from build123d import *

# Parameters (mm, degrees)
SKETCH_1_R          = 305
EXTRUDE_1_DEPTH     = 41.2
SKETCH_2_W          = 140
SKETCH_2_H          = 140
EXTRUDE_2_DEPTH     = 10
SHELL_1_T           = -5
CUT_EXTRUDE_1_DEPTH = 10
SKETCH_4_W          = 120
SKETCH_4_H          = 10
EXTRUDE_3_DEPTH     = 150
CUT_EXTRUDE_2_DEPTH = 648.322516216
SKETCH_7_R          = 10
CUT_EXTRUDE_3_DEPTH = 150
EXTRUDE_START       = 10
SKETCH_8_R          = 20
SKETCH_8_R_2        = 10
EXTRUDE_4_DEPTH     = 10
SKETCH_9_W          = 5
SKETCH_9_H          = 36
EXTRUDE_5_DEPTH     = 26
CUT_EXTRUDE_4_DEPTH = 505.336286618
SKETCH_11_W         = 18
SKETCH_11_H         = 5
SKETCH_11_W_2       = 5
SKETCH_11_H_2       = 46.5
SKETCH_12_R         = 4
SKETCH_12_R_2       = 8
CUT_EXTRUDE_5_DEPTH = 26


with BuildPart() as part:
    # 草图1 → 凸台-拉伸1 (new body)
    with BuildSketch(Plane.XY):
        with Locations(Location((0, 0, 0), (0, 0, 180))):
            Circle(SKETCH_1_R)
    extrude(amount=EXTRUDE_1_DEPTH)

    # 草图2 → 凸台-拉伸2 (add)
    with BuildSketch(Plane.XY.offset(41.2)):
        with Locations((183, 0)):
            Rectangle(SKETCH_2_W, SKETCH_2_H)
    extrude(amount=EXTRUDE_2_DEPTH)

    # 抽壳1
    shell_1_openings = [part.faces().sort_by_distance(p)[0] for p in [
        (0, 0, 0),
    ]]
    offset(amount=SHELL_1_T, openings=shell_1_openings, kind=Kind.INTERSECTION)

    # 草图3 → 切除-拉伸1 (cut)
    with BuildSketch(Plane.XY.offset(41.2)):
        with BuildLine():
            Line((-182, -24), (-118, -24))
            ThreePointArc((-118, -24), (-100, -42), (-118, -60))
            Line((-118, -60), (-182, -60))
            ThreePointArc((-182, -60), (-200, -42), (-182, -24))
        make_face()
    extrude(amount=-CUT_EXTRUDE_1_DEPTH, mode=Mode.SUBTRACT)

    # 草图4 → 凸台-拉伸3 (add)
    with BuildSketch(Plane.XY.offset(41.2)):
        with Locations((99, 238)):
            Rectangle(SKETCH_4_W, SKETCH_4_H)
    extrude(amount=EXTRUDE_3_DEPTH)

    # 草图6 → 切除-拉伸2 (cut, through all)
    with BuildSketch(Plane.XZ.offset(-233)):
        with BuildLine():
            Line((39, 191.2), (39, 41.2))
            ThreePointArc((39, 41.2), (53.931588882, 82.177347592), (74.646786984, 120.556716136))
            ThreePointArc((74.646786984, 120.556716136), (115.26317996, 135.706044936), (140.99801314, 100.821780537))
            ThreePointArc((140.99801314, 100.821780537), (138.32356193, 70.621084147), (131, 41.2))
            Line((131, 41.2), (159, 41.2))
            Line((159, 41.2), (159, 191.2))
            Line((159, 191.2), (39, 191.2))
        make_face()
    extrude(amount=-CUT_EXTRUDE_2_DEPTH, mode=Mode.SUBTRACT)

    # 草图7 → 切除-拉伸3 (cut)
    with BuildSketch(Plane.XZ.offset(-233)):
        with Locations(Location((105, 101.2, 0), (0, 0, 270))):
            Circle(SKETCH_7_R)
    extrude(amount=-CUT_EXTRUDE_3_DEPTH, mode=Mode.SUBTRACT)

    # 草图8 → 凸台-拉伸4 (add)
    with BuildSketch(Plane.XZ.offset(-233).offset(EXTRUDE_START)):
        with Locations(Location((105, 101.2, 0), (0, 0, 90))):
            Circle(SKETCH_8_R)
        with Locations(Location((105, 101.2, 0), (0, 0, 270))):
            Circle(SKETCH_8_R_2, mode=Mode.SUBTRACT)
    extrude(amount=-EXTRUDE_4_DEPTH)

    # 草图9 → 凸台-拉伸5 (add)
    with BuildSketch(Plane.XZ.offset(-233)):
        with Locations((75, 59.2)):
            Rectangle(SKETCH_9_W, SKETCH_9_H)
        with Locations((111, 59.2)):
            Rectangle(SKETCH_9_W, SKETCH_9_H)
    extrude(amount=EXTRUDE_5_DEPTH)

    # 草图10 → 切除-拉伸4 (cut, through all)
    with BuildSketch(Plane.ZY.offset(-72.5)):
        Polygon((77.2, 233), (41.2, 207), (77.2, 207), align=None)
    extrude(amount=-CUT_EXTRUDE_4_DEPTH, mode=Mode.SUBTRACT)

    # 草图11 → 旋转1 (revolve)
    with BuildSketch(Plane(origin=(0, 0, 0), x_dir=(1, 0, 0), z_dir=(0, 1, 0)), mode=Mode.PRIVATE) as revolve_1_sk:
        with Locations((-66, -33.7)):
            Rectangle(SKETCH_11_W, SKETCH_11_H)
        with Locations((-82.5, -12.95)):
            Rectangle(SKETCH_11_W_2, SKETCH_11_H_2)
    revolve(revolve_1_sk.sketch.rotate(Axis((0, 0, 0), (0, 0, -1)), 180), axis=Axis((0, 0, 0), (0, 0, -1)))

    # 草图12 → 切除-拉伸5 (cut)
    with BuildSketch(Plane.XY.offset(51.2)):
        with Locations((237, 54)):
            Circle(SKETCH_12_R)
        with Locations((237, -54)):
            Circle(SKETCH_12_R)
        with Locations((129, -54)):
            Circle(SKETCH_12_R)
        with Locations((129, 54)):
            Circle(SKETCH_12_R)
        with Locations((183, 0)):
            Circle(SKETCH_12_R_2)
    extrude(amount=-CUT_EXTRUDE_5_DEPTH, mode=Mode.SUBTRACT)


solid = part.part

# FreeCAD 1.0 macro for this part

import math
import FreeCAD as App
import Part
import Sketcher
from FreeCAD import Vector


def faces_at(feature, points):
    """Names of the faces that lie closest to the given points."""
    faces = feature.Shape.Faces
    near = lambda p: min(range(len(faces)), key=lambda i: faces[i].distToShape(Part.Vertex(*p))[0])
    return sorted({f"Face{near(p) + 1}" for p in points})


def add_polygon(sketch, points):
    """Adds a closed chain of lines whose ends are joined by coincident constraints."""
    first, n = sketch.GeometryCount, len(points)
    for a, b in zip(points, points[1:] + points[:1]):
        sketch.addGeometry(Part.LineSegment(App.Vector(*a, 0), App.Vector(*b, 0)), False)
    for i in range(n):
        sketch.addConstraint(Sketcher.Constraint("Coincident", first + i, 2, first + (i + 1) % n, 1))

doc = App.newDocument("Part")
body = doc.addObject("PartDesign::Body", "Body")

sketch1 = body.newObject("Sketcher::SketchObject", "Sketch")
sketch1.AttachmentSupport = (doc.getObject("XY_Plane"), [""])
sketch1.MapMode = "FlatFace"
sketch1.addGeometry(Part.Circle(Vector(0, 0, 0), Vector(0, 0, 1), 305), False)
sketch1.addConstraint(Sketcher.Constraint("Coincident", 0, 3, -1, 1))
sketch1.addConstraint(Sketcher.Constraint("Diameter", 0, 610.0))
pad1 = body.newObject("PartDesign::Pad", "Pad")
pad1.Profile = sketch1
pad1.Length = 41.2

sketch2 = body.newObject("Sketcher::SketchObject", "Sketch001")
sketch2.AttachmentSupport = (doc.getObject("XY_Plane"), [""])
sketch2.MapMode = "FlatFace"
sketch2.AttachmentOffset = App.Placement(Vector(0, 0, 41.2), App.Rotation())
add_polygon(sketch2, [(113, 70), (113, -70), (253, -70), (253, 70)])
sketch2.addConstraint(Sketcher.Constraint("Vertical", 0))
sketch2.addConstraint(Sketcher.Constraint("Horizontal", 1))
sketch2.addConstraint(Sketcher.Constraint("Vertical", 2))
sketch2.addConstraint(Sketcher.Constraint("Horizontal", 3))
sketch2.addConstraint(Sketcher.Constraint("Equal", 3, 0))
sketch2.addConstraint(Sketcher.Constraint("DistanceX", 1, 1, 1, 2, 140.0))
sketch2.addConstraint(Sketcher.Constraint("DistanceX", -1, 1, 0, 2, 113.0))
sketch2.addConstraint(Sketcher.Constraint("DistanceY", 0, 2, -1, 1, 70.0))
pad2 = body.newObject("PartDesign::Pad", "Pad001")
pad2.Profile = sketch2
pad2.Length = 10
doc.recompute()

thickness = body.newObject("PartDesign::Thickness", "Thickness")
thickness.Base = (pad2, faces_at(pad2, [(0, 0, 0)]))
thickness.Value = 5
thickness.Reversed = True
thickness.Join = "Intersection"

sketch3 = body.newObject("Sketcher::SketchObject", "Sketch002")
sketch3.AttachmentSupport = (doc.getObject("XY_Plane"), [""])
sketch3.MapMode = "FlatFace"
sketch3.AttachmentOffset = App.Placement(Vector(0, 0, 41.2), App.Rotation())
sketch3.addGeometry(Part.LineSegment(Vector(-118, -24, 0), Vector(-182, -24, 0)), False)
sketch3.addGeometry(Part.ArcOfCircle(Part.Circle(Vector(-182, -42, 0), Vector(0, 0, 1), 18), math.radians(90), math.radians(270)), False)
sketch3.addGeometry(Part.LineSegment(Vector(-182, -60, 0), Vector(-118, -60, 0)), False)
sketch3.addGeometry(Part.ArcOfCircle(Part.Circle(Vector(-118, -42, 0), Vector(0, 0, 1), 18), math.radians(-90), math.radians(90)), False)
sketch3.addConstraint(Sketcher.Constraint("Tangent", 0, 2, 1, 1))
sketch3.addConstraint(Sketcher.Constraint("Tangent", 1, 2, 2, 1))
sketch3.addConstraint(Sketcher.Constraint("Tangent", 2, 2, 3, 1))
sketch3.addConstraint(Sketcher.Constraint("Tangent", 3, 2, 0, 1))
sketch3.addConstraint(Sketcher.Constraint("Horizontal", 0))
sketch3.addConstraint(Sketcher.Constraint("Horizontal", 2))
sketch3.addConstraint(Sketcher.Constraint("Radius", 1, 18.0))
sketch3.addConstraint(Sketcher.Constraint("DistanceX", 0, 2, 0, 1, 64.0))
sketch3.addConstraint(Sketcher.Constraint("DistanceX", 1, 3, -1, 1, 182.0))
sketch3.addConstraint(Sketcher.Constraint("DistanceY", 1, 3, -1, 1, 42.0))
pocket1 = body.newObject("PartDesign::Pocket", "Pocket")
pocket1.Profile = sketch3
pocket1.Length = 10

sketch4 = body.newObject("Sketcher::SketchObject", "Sketch003")
sketch4.AttachmentSupport = (doc.getObject("XY_Plane"), [""])
sketch4.MapMode = "FlatFace"
sketch4.AttachmentOffset = App.Placement(Vector(0, 0, 41.2), App.Rotation())
add_polygon(sketch4, [(39, 243), (39, 233), (159, 233), (159, 243)])
sketch4.addConstraint(Sketcher.Constraint("Vertical", 0))
sketch4.addConstraint(Sketcher.Constraint("Horizontal", 1))
sketch4.addConstraint(Sketcher.Constraint("Vertical", 2))
sketch4.addConstraint(Sketcher.Constraint("Horizontal", 3))
sketch4.addConstraint(Sketcher.Constraint("DistanceX", 1, 1, 1, 2, 120.0))
sketch4.addConstraint(Sketcher.Constraint("DistanceY", 0, 2, 0, 1, 10.0))
sketch4.addConstraint(Sketcher.Constraint("DistanceX", -1, 1, 0, 2, 39.0))
sketch4.addConstraint(Sketcher.Constraint("DistanceY", -1, 1, 0, 2, 233.0))
pad3 = body.newObject("PartDesign::Pad", "Pad002")
pad3.Profile = sketch4
pad3.Length = 150

sketch5 = body.newObject("Sketcher::SketchObject", "Sketch004")
sketch5.AttachmentSupport = (doc.getObject("XZ_Plane"), [""])
sketch5.MapMode = "FlatFace"
sketch5.AttachmentOffset = App.Placement(Vector(0, 0, -233), App.Rotation())
sketch5.addGeometry(Part.LineSegment(Vector(39, 191, 0), Vector(39, 41, 0)), False)
sketch5.addGeometry(Part.ArcOfCircle(Part.Circle(Vector(328, -41, 0), Vector(0, 0, 1), 300), math.radians(147.47), math.radians(164.15)), False)
sketch5.addGeometry(Part.ArcOfCircle(Part.Circle(Vector(105, 101, 0), Vector(0, 0, 1), 36), math.radians(-1), math.radians(147)), False)
sketch5.addGeometry(Part.ArcOfCircle(Part.Circle(Vector(-54, 103, 0), Vector(0, 0, 1), 195), math.radians(-18.44), math.radians(-0.6)), False)
sketch5.addGeometry(Part.LineSegment(Vector(131, 41, 0), Vector(159, 41, 0)), False)
sketch5.addGeometry(Part.LineSegment(Vector(159, 41, 0), Vector(159, 191, 0)), False)
sketch5.addGeometry(Part.LineSegment(Vector(159, 191, 0), Vector(39, 191, 0)), False)
sketch5.addConstraint(Sketcher.Constraint("Coincident", 0, 2, 1, 2))
sketch5.addConstraint(Sketcher.Constraint("Tangent", 1, 1, 2, 2))
sketch5.addConstraint(Sketcher.Constraint("Tangent", 2, 1, 3, 2))
sketch5.addConstraint(Sketcher.Constraint("Coincident", 3, 1, 4, 1))
sketch5.addConstraint(Sketcher.Constraint("Coincident", 4, 2, 5, 1))
sketch5.addConstraint(Sketcher.Constraint("Coincident", 5, 2, 6, 1))
sketch5.addConstraint(Sketcher.Constraint("Coincident", 6, 2, 0, 1))
sketch5.addConstraint(Sketcher.Constraint("Vertical", 0))
sketch5.addConstraint(Sketcher.Constraint("Horizontal", 4))
sketch5.addConstraint(Sketcher.Constraint("Vertical", 5))
sketch5.addConstraint(Sketcher.Constraint("Horizontal", 6))
sketch5.addConstraint(Sketcher.Constraint("Horizontal", 0, 2, 3, 1))
sketch5.addConstraint(Sketcher.Constraint("Radius", 1, 300.0))
sketch5.addConstraint(Sketcher.Constraint("Radius", 2, 36.0))
sketch5.addConstraint(Sketcher.Constraint("Radius", 3, 195.0))
sketch5.addConstraint(Sketcher.Constraint("DistanceX", 4, 1, 4, 2, 28.0))
sketch5.addConstraint(Sketcher.Constraint("DistanceX", 6, 2, 6, 1, 120.0))
sketch5.addConstraint(Sketcher.Constraint("DistanceY", 0, 2, 0, 1, 150.0))
sketch5.addConstraint(Sketcher.Constraint("DistanceX", -1, 1, 2, 3, 105.0))
sketch5.addConstraint(Sketcher.Constraint("DistanceX", -1, 1, 0, 2, 39.0))
sketch5.addConstraint(Sketcher.Constraint("DistanceY", 0, 2, 2, 3, 60.0))
sketch5.addConstraint(Sketcher.Constraint("DistanceY", -1, 1, 2, 3, 101.2))
pocket2 = body.newObject("PartDesign::Pocket", "Pocket001")
pocket2.Profile = sketch5
pocket2.Type = "ThroughAll"

sketch6 = body.newObject("Sketcher::SketchObject", "Sketch005")
sketch6.AttachmentSupport = (doc.getObject("XZ_Plane"), [""])
sketch6.MapMode = "FlatFace"
sketch6.AttachmentOffset = App.Placement(Vector(0, 0, -233), App.Rotation())
sketch6.addGeometry(Part.Circle(Vector(105, 101, 0), Vector(0, 0, 1), 10), False)
sketch6.addConstraint(Sketcher.Constraint("Diameter", 0, 20.0))
sketch6.addConstraint(Sketcher.Constraint("DistanceX", -1, 1, 0, 3, 105.0))
sketch6.addConstraint(Sketcher.Constraint("DistanceY", -1, 1, 0, 3, 101.2))
pocket3 = body.newObject("PartDesign::Pocket", "Pocket002")
pocket3.Profile = sketch6
pocket3.Length = 150

sketch7 = body.newObject("Sketcher::SketchObject", "Sketch006")
sketch7.AttachmentSupport = (doc.getObject("XZ_Plane"), [""])
sketch7.MapMode = "FlatFace"
sketch7.AttachmentOffset = App.Placement(Vector(0, 0, -223), App.Rotation())
sketch7.addGeometry(Part.Circle(Vector(105, 101, 0), Vector(0, 0, 1), 20), False)
sketch7.addGeometry(Part.Circle(Vector(105, 101, 0), Vector(0, 0, 1), 10), False)
sketch7.addConstraint(Sketcher.Constraint("Coincident", 1, 3, 0, 3))
sketch7.addConstraint(Sketcher.Constraint("Diameter", 0, 40.0))
sketch7.addConstraint(Sketcher.Constraint("Diameter", 1, 20.0))
sketch7.addConstraint(Sketcher.Constraint("DistanceX", -1, 1, 0, 3, 105.0))
sketch7.addConstraint(Sketcher.Constraint("DistanceY", -1, 1, 0, 3, 101.2))
pad4 = body.newObject("PartDesign::Pad", "Pad003")
pad4.Profile = sketch7
pad4.Length = 10
pad4.Reversed = True

sketch8 = body.newObject("Sketcher::SketchObject", "Sketch007")
sketch8.AttachmentSupport = (doc.getObject("XZ_Plane"), [""])
sketch8.MapMode = "FlatFace"
sketch8.AttachmentOffset = App.Placement(Vector(0, 0, -233), App.Rotation())
add_polygon(sketch8, [(72, 77), (72, 41), (78, 41), (78, 77)])
add_polygon(sketch8, [(108, 77), (108, 41), (114, 41), (114, 77)])
sketch8.addConstraint(Sketcher.Constraint("Vertical", 0))
sketch8.addConstraint(Sketcher.Constraint("Horizontal", 1))
sketch8.addConstraint(Sketcher.Constraint("Vertical", 2))
sketch8.addConstraint(Sketcher.Constraint("Horizontal", 3))
sketch8.addConstraint(Sketcher.Constraint("Vertical", 4))
sketch8.addConstraint(Sketcher.Constraint("Horizontal", 5))
sketch8.addConstraint(Sketcher.Constraint("Vertical", 6))
sketch8.addConstraint(Sketcher.Constraint("Horizontal", 7))
sketch8.addConstraint(Sketcher.Constraint("Horizontal", 1, 2, 4, 2))
sketch8.addConstraint(Sketcher.Constraint("Horizontal", 3, 2, 6, 2))
sketch8.addConstraint(Sketcher.Constraint("Equal", 3, 5))
sketch8.addConstraint(Sketcher.Constraint("DistanceX", 1, 1, 1, 2, 5.0))
sketch8.addConstraint(Sketcher.Constraint("DistanceY", 0, 2, 0, 1, 36.0))
sketch8.addConstraint(Sketcher.Constraint("DistanceX", 1, 2, 4, 2, 31.0))
sketch8.addConstraint(Sketcher.Constraint("DistanceX", -1, 1, 0, 2, 72.5))
sketch8.addConstraint(Sketcher.Constraint("DistanceY", -1, 1, 0, 2, 41.2))
pad5 = body.newObject("PartDesign::Pad", "Pad004")
pad5.Profile = sketch8
pad5.Length = 26

sketch9 = body.newObject("Sketcher::SketchObject", "Sketch008")
sketch9.AttachmentSupport = (doc.getObject("YZ_Plane"), [""])
sketch9.MapMode = "FlatFace"
sketch9.AttachmentOffset = App.Placement(Vector(0, 0, 72.5), App.Rotation())
add_polygon(sketch9, [(233, 77), (207, 41), (207, 77)])
sketch9.addConstraint(Sketcher.Constraint("Vertical", 1))
sketch9.addConstraint(Sketcher.Constraint("Horizontal", 2))
sketch9.addConstraint(Sketcher.Constraint("DistanceX", 2, 1, 2, 2, 26.0))
sketch9.addConstraint(Sketcher.Constraint("DistanceY", 1, 1, 1, 2, 36.0))
sketch9.addConstraint(Sketcher.Constraint("DistanceX", -1, 1, 0, 2, 207.0))
sketch9.addConstraint(Sketcher.Constraint("DistanceY", -1, 1, 0, 2, 41.2))
pocket4 = body.newObject("PartDesign::Pocket", "Pocket003")
pocket4.Profile = sketch9
pocket4.Type = "ThroughAll"
pocket4.Reversed = True

sketch10 = body.newObject("Sketcher::SketchObject", "Sketch009")
sketch10.AttachmentSupport = (doc.getObject("XZ_Plane"), [""])
sketch10.MapMode = "FlatFace"
add_polygon(sketch10, [(-75, 31), (-75, 36), (-57, 36), (-57, 31)])
add_polygon(sketch10, [(-85, -10), (-85, 36), (-80, 36), (-80, -10)])
sketch10.addConstraint(Sketcher.Constraint("Vertical", 0))
sketch10.addConstraint(Sketcher.Constraint("Horizontal", 1))
sketch10.addConstraint(Sketcher.Constraint("Vertical", 2))
sketch10.addConstraint(Sketcher.Constraint("Horizontal", 3))
sketch10.addConstraint(Sketcher.Constraint("Vertical", 4))
sketch10.addConstraint(Sketcher.Constraint("Horizontal", 5))
sketch10.addConstraint(Sketcher.Constraint("Vertical", 6))
sketch10.addConstraint(Sketcher.Constraint("Horizontal", 7))
sketch10.addConstraint(Sketcher.Constraint("Horizontal", 1, 2, 4, 2))
sketch10.addConstraint(Sketcher.Constraint("Equal", 7, 0))
sketch10.addConstraint(Sketcher.Constraint("DistanceX", 1, 1, 1, 2, 18.0))
sketch10.addConstraint(Sketcher.Constraint("DistanceX", 5, 1, 5, 2, 5.0))
sketch10.addConstraint(Sketcher.Constraint("DistanceY", 4, 1, 4, 2, 46.5))
sketch10.addConstraint(Sketcher.Constraint("DistanceX", 0, 2, -1, 1, 75.0))
sketch10.addConstraint(Sketcher.Constraint("DistanceX", 4, 2, -1, 1, 85.0))
sketch10.addConstraint(Sketcher.Constraint("DistanceY", -1, 1, 0, 2, 36.2))
revolution = body.newObject("PartDesign::Revolution", "Revolution")
revolution.Profile = sketch10
revolution.ReferenceAxis = (sketch10, ["V_Axis"])
revolution.Angle = 360

sketch11 = body.newObject("Sketcher::SketchObject", "Sketch010")
sketch11.AttachmentSupport = (doc.getObject("XY_Plane"), [""])
sketch11.MapMode = "FlatFace"
sketch11.AttachmentOffset = App.Placement(Vector(0, 0, 51.2), App.Rotation())
sketch11.addGeometry(Part.Circle(Vector(237, 54, 0), Vector(0, 0, 1), 4), False)
sketch11.addGeometry(Part.Circle(Vector(237, -54, 0), Vector(0, 0, 1), 4), False)
sketch11.addGeometry(Part.Circle(Vector(129, -54, 0), Vector(0, 0, 1), 4), False)
sketch11.addGeometry(Part.Circle(Vector(129, 54, 0), Vector(0, 0, 1), 4), False)
sketch11.addGeometry(Part.Circle(Vector(183, 0, 0), Vector(0, 0, 1), 8), False)
sketch11.addConstraint(Sketcher.Constraint("Equal", 0, 1))
sketch11.addConstraint(Sketcher.Constraint("Equal", 1, 2))
sketch11.addConstraint(Sketcher.Constraint("Equal", 2, 3))
sketch11.addConstraint(Sketcher.Constraint("Symmetric", 0, 3, 1, 3, -1))
sketch11.addConstraint(Sketcher.Constraint("Symmetric", 2, 3, 3, 3, -1))
sketch11.addConstraint(Sketcher.Constraint("PointOnObject", 4, 3, -1))
sketch11.addConstraint(Sketcher.Constraint("Horizontal", 1, 3, 2, 3))
sketch11.addConstraint(Sketcher.Constraint("Diameter", 0, 8.0))
sketch11.addConstraint(Sketcher.Constraint("Diameter", 4, 16.0))
sketch11.addConstraint(Sketcher.Constraint("DistanceX", -1, 1, 0, 3, 237.0))
sketch11.addConstraint(Sketcher.Constraint("DistanceY", -1, 1, 0, 3, 54.0))
sketch11.addConstraint(Sketcher.Constraint("DistanceX", -1, 1, 2, 3, 129.0))
sketch11.addConstraint(Sketcher.Constraint("DistanceX", -1, 1, 4, 3, 183.0))
pocket5 = body.newObject("PartDesign::Pocket", "Pocket004")
pocket5.Profile = sketch11
pocket5.Length = 26

doc.recompute()
